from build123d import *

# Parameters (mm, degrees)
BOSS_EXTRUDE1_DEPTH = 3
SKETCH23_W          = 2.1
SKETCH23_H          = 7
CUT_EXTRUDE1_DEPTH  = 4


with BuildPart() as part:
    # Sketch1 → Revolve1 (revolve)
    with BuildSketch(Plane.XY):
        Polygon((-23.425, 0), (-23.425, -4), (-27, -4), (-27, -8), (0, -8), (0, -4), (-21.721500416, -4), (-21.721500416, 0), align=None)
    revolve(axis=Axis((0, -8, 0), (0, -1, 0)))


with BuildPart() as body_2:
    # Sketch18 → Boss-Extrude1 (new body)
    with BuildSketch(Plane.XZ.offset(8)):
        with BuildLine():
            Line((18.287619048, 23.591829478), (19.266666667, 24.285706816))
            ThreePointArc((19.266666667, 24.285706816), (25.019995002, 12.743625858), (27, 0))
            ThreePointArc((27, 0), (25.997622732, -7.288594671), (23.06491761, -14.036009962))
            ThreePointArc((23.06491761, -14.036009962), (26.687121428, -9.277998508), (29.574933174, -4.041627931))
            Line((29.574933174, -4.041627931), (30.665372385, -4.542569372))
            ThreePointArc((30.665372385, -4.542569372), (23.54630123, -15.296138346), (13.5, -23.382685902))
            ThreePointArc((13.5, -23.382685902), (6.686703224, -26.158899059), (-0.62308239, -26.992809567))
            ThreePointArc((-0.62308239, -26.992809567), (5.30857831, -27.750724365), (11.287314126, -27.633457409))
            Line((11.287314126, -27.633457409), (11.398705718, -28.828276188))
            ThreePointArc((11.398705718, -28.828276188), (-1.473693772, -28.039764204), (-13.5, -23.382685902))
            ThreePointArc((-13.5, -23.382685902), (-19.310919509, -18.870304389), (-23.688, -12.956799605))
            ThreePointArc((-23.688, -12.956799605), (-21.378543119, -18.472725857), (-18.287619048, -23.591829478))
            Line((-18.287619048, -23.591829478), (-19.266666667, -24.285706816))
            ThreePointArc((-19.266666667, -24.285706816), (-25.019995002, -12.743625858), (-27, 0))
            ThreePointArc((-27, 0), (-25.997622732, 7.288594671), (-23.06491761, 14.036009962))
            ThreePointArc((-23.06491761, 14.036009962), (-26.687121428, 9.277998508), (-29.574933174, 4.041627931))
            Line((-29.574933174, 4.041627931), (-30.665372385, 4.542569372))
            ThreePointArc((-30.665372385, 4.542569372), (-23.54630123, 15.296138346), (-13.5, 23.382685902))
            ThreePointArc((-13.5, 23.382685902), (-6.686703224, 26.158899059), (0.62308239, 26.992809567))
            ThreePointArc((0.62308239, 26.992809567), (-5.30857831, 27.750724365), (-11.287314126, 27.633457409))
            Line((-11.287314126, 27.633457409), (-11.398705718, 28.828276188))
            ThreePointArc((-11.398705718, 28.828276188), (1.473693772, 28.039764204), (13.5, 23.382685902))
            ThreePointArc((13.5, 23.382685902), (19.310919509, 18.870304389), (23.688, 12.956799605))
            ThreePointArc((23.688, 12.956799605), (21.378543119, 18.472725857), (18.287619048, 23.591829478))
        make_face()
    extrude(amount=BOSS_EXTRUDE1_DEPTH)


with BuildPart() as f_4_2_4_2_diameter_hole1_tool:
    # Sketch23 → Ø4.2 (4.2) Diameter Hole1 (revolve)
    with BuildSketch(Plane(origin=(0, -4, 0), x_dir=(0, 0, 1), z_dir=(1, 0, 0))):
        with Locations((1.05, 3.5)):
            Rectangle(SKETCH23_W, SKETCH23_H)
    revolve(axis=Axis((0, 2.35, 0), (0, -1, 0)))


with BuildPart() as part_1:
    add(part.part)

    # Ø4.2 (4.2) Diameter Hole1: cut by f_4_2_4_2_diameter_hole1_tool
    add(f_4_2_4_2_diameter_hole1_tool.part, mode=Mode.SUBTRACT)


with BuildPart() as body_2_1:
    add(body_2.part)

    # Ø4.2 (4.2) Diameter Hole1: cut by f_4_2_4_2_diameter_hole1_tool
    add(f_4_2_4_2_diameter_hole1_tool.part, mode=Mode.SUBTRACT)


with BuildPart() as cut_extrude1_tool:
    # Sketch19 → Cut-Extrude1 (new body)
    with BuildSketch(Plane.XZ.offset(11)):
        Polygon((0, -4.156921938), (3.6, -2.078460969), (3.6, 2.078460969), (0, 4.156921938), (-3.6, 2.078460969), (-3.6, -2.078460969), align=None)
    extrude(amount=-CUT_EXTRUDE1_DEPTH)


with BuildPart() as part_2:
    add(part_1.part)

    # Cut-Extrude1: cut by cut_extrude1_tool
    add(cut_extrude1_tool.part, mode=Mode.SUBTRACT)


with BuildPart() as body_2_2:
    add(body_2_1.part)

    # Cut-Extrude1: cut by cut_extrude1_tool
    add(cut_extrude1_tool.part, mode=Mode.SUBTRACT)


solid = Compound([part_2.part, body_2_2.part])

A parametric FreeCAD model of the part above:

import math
import FreeCAD as App
import Part
import Sketcher
Q = App.Units.Quantity

doc = App.newDocument("Part")
body = doc.addObject("PartDesign::Body", "Body")

# Sketch on XY plane
sketch1 = body.newObject("Sketcher::SketchObject", "Sketch")
sketch1.AttachmentSupport = (doc.getObject("XY_Plane"), [""])
sketch1.MapMode = "FlatFace"
sketch1.addGeometry([
    Part.LineSegment(App.Vector(-23.4, 0, 0), App.Vector(-23.4, -4, 0)),  # 0
    Part.LineSegment(App.Vector(-23.4, -4, 0), App.Vector(-27, -4, 0)),  # 1
    Part.LineSegment(App.Vector(-27, -4, 0), App.Vector(-27, -8, 0)),  # 2
    Part.LineSegment(App.Vector(-27, -8, 0), App.Vector(0, -8, 0)),  # 3
    Part.LineSegment(App.Vector(0, -8, 0), App.Vector(0, -4, 0)),  # 4
    Part.LineSegment(App.Vector(0, -4, 0), App.Vector(-21.7, -4, 0)),  # 5
    Part.LineSegment(App.Vector(-21.7, -4, 0), App.Vector(-21.7, 0, 0)),  # 6
    Part.LineSegment(App.Vector(-21.7, 0, 0), App.Vector(-23.4, 0, 0)),  # 7
], False)
sketch1.addConstraint([
    Sketcher.Constraint("Coincident", 0, 2, 1, 1),
    Sketcher.Constraint("Coincident", 1, 2, 2, 1),
    Sketcher.Constraint("Coincident", 2, 2, 3, 1),
    Sketcher.Constraint("Coincident", 3, 2, 4, 1),
    Sketcher.Constraint("Coincident", 4, 2, 5, 1),
    Sketcher.Constraint("Coincident", 5, 2, 6, 1),
    Sketcher.Constraint("Coincident", 6, 2, 7, 1),
    Sketcher.Constraint("Coincident", 7, 2, 0, 1),
    Sketcher.Constraint("Vertical", 0),
    Sketcher.Constraint("Horizontal", 1),
    Sketcher.Constraint("Vertical", 2),
    Sketcher.Constraint("Horizontal", 3),
    Sketcher.Constraint("Vertical", 4),
    Sketcher.Constraint("Horizontal", 5),
    Sketcher.Constraint("Vertical", 6),
    Sketcher.Constraint("Horizontal", 7),
    Sketcher.Constraint("PointOnObject", 3, 2, -2),
    Sketcher.Constraint("PointOnObject", 6, 2, -1),
    Sketcher.Constraint("Horizontal", 1, 2, 4, 2),
    Sketcher.Constraint("Equal", 0, 2),
    Sketcher.Constraint("DistanceX", 3, 1, 3, 2, 27.0),
    Sketcher.Constraint("DistanceY", 0, 2, 0, 1, 4.0),
    Sketcher.Constraint("DistanceX", 1, 2, 1, 1, 3.575),
    Sketcher.Constraint("DistanceX", 5, 2, 5, 1, 21.7215),
])
revolution = body.newObject("PartDesign::Revolution", "Revolution")
revolution.Profile = sketch1
revolution.ReferenceAxis = (sketch1, ["V_Axis"])
revolution.Angle = 360
body2 = doc.addObject("PartDesign::Body", "Body001")

# Sketch on XZ plane
sketch2 = body2.newObject("Sketcher::SketchObject", "Sketch001")
sketch2.AttachmentSupport = (doc.getObject("XZ_Plane001"), [""])
sketch2.MapMode = "FlatFace"
sketch2.AttachmentOffset = App.Placement(App.Vector(0, 0, 8), App.Rotation())
sketch2.addGeometry([
    Part.LineSegment(App.Vector(19.3, 24.3, 0), App.Vector(18.3, 23.6, 0)),  # 0
    Part.ArcOfCircle(Part.Circle(App.Vector(-15, 0, 0), App.Vector(0, 0, 1), 40.8), math.radians(18.52), math.radians(35.33)),  # 1
    Part.ArcOfCircle(Part.Circle(App.Vector(0, 0, 0), App.Vector(0, 0, 1), 27), math.radians(29), math.radians(60)),  # 2
    Part.ArcOfCircle(Part.Circle(App.Vector(-7.5, -13, 0), App.Vector(0, 0, 1), 42), math.radians(60), math.radians(95)),  # 3
    Part.LineSegment(App.Vector(-11.4, 28.8, 0), App.Vector(-11.3, 27.6, 0)),  # 4
    Part.ArcOfCircle(Part.Circle(App.Vector(-7.5, -13, 0), App.Vector(0, 0, 1), 40.8), math.radians(78.52), math.radians(95.33)),  # 5
    Part.ArcOfCircle(Part.Circle(App.Vector(0, 0, 0), App.Vector(0, 0, 1), 27), math.radians(89), math.radians(120)),  # 6
    Part.ArcOfCircle(Part.Circle(App.Vector(7.5, -13, 0), App.Vector(0, 0, 1), 42), math.radians(120), math.radians(155)),  # 7
    Part.LineSegment(App.Vector(-30.7, 4.5, 0), App.Vector(-29.6, 4, 0)),  # 8
    Part.ArcOfCircle(Part.Circle(App.Vector(7.5, -13, 0), App.Vector(0, 0, 1), 40.8), math.radians(138.52), math.radians(155.33)),  # 9
    Part.ArcOfCircle(Part.Circle(App.Vector(0, 0, 0), App.Vector(0, 0, 1), 27), math.radians(149), math.radians(180)),  # 10
    Part.ArcOfCircle(Part.Circle(App.Vector(15, 0, 0), App.Vector(0, 0, 1), 42), math.radians(-180), math.radians(-145)),  # 11
    Part.LineSegment(App.Vector(-19.3, -24.3, 0), App.Vector(-18.3, -23.6, 0)),  # 12
    Part.ArcOfCircle(Part.Circle(App.Vector(15, 0, 0), App.Vector(0, 0, 1), 40.8), math.radians(-161.48), math.radians(-144.67)),  # 13
    Part.ArcOfCircle(Part.Circle(App.Vector(0, 0, 0), App.Vector(0, 0, 1), 27), math.radians(-151), math.radians(-120)),  # 14
    Part.ArcOfCircle(Part.Circle(App.Vector(7.5, 13, 0), App.Vector(0, 0, 1), 42), math.radians(-120), math.radians(-85)),  # 15
    Part.LineSegment(App.Vector(11.4, -28.8, 0), App.Vector(11.3, -27.6, 0)),  # 16
    Part.ArcOfCircle(Part.Circle(App.Vector(7.5, 13, 0), App.Vector(0, 0, 1), 40.8), math.radians(-101.48), math.radians(-84.67)),  # 17
    Part.ArcOfCircle(Part.Circle(App.Vector(0, 0, 0), App.Vector(0, 0, 1), 27), math.radians(-91), math.radians(-60)),  # 18
    Part.ArcOfCircle(Part.Circle(App.Vector(-7.5, 13, 0), App.Vector(0, 0, 1), 42), math.radians(-60), math.radians(-25)),  # 19
    Part.LineSegment(App.Vector(30.7, -4.5, 0), App.Vector(29.6, -4, 0)),  # 20
    Part.ArcOfCircle(Part.Circle(App.Vector(-7.5, 13, 0), App.Vector(0, 0, 1), 40.8), math.radians(-41.48), math.radians(-24.67)),  # 21
    Part.ArcOfCircle(Part.Circle(App.Vector(0, 0, 0), App.Vector(0, 0, 1), 27), math.radians(-31), math.radians(0)),  # 22
    Part.ArcOfCircle(Part.Circle(App.Vector(-15, 0, 0), App.Vector(0, 0, 1), 42), math.radians(0), math.radians(35)),  # 23
], False)
sketch2.addConstraint([
    Sketcher.Constraint("Coincident", 0, 2, 1, 2),
    Sketcher.Constraint("Coincident", 1, 1, 2, 1),
    Sketcher.Constraint("Tangent", 2, 2, 3, 1),
    Sketcher.Constraint("Coincident", 3, 2, 4, 1),
    Sketcher.Constraint("Coincident", 4, 2, 5, 2),
    Sketcher.Constraint("Coincident", 5, 1, 6, 1),
    Sketcher.Constraint("Tangent", 6, 2, 7, 1),
    Sketcher.Constraint("Coincident", 7, 2, 8, 1),
    Sketcher.Constraint("Coincident", 8, 2, 9, 2),
    Sketcher.Constraint("Coincident", 9, 1, 10, 1),
    Sketcher.Constraint("Tangent", 10, 2, 11, 1),
    Sketcher.Constraint("Coincident", 11, 2, 12, 1),
    Sketcher.Constraint("Coincident", 12, 2, 13, 2),
    Sketcher.Constraint("Coincident", 13, 1, 14, 1),
    Sketcher.Constraint("Tangent", 14, 2, 15, 1),
    Sketcher.Constraint("Coincident", 15, 2, 16, 1),
    Sketcher.Constraint("Coincident", 16, 2, 17, 2),
    Sketcher.Constraint("Coincident", 17, 1, 18, 1),
    Sketcher.Constraint("Tangent", 18, 2, 19, 1),
    Sketcher.Constraint("Coincident", 19, 2, 20, 1),
    Sketcher.Constraint("Coincident", 20, 2, 21, 2),
    Sketcher.Constraint("Coincident", 21, 1, 22, 1),
    Sketcher.Constraint("Tangent", 22, 2, 23, 1),
    Sketcher.Constraint("Coincident", 23, 2, 0, 1),
    Sketcher.Constraint("Coincident", 2, 3, -1, 1),
    Sketcher.Constraint("Coincident", 6, 3, -1, 1),
    Sketcher.Constraint("Coincident", 10, 3, -1, 1),
    Sketcher.Constraint("Coincident", 14, 3, -1, 1),
    Sketcher.Constraint("Coincident", 18, 3, -1, 1),
    Sketcher.Constraint("Coincident", 22, 3, -1, 1),
    Sketcher.Constraint("Coincident", 5, 3, 3, 3),
    Sketcher.Constraint("Coincident", 9, 3, 7, 3),
    Sketcher.Constraint("Coincident", 13, 3, 11, 3),
    Sketcher.Constraint("Coincident", 17, 3, 15, 3),
    Sketcher.Constraint("Coincident", 21, 3, 19, 3),
    Sketcher.Constraint("Coincident", 23, 3, 1, 3),
    Sketcher.Constraint("Equal", 1, 5),
    Sketcher.Constraint("Equal", 2, 6),
    Sketcher.Constraint("Equal", 3, 7),
    Sketcher.Constraint("Equal", 5, 9),
    Sketcher.Constraint("Equal", 6, 10),
    Sketcher.Constraint("Equal", 7, 11),
    Sketcher.Constraint("Equal", 9, 13),
    Sketcher.Constraint("Equal", 10, 14),
    Sketcher.Constraint("Equal", 11, 15),
    Sketcher.Constraint("Equal", 13, 17),
    Sketcher.Constraint("Equal", 14, 18),
    Sketcher.Constraint("Equal", 15, 19),
    Sketcher.Constraint("Equal", 17, 21),
    Sketcher.Constraint("Equal", 18, 22),
    Sketcher.Constraint("Equal", 19, 23),
    Sketcher.Constraint("Symmetric", 0, 2, 12, 2, -1, 1),
    Sketcher.Constraint("Symmetric", 3, 2, 15, 2, -1, 1),
    Sketcher.Constraint("Symmetric", 7, 2, 19, 2, -1, 1),
    Sketcher.Constraint("PointOnObject", 1, 3, -1),
    Sketcher.Constraint("Parallel", 0, 12),
    Sketcher.Constraint("Parallel", 4, 16),
    Sketcher.Constraint("Parallel", 8, 20),
    Sketcher.Constraint("Horizontal", 5, 3, 7, 3),
    Sketcher.Constraint("Radius", 2, 27.0),
    Sketcher.Constraint("Radius", 3, 42.0),
    Sketcher.Constraint("Radius", 1, 40.8),
    Sketcher.Constraint("DistanceX", 5, 3, 7, 3, 15.0),
    Sketcher.Constraint("DistanceX", -1, 1, 0, 2, 18.287619),
    Sketcher.Constraint("DistanceY", -1, 1, 7, 2, 4.542569),
    Sketcher.Constraint("DistanceY", 2, 2, 3, 2, 5.44559),
    Sketcher.Constraint("DistanceX", 3, 2, 4, 2, 0.111392),
    Sketcher.Constraint("DistanceX", 7, 2, 8, 2, 1.090439),
    Sketcher.Constraint("DistanceY", 11, 2, 14, 2, 0.903021),
])
pad1 = body2.newObject("PartDesign::Pad", "Pad")
pad1.Profile = sketch2
pad1.Length = 3
body3 = doc.addObject("PartDesign::Body", "Body002")

# Sketch on YZ plane
sketch3 = body3.newObject("Sketcher::SketchObject", "Sketch002")
sketch3.AttachmentSupport = (doc.getObject("YZ_Plane002"), [""])
sketch3.MapMode = "FlatFace"
sketch3.addGeometry([
    Part.LineSegment(App.Vector(-11, 0, 0), App.Vector(-4, 0, 0)),
    Part.LineSegment(App.Vector(-4, 0, 0), App.Vector(-4, 2.1, 0)),
    Part.LineSegment(App.Vector(-4, 2.1, 0), App.Vector(-11, 2.1, 0)),
    Part.LineSegment(App.Vector(-11, 2.1, 0), App.Vector(-11, 0, 0)),
], False)
sketch3.addConstraint([
    Sketcher.Constraint("Coincident", 0, 2, 1, 1),
    Sketcher.Constraint("Coincident", 1, 2, 2, 1),
    Sketcher.Constraint("Coincident", 2, 2, 3, 1),
    Sketcher.Constraint("Coincident", 3, 2, 0, 1),
    Sketcher.Constraint("Horizontal", 0),
    Sketcher.Constraint("Vertical", 1),
    Sketcher.Constraint("Horizontal", 2),
    Sketcher.Constraint("Vertical", 3),
    Sketcher.Constraint("PointOnObject", 0, 2, -1),
    Sketcher.Constraint("DistanceX", 0, 1, 0, 2, 7.0),
    Sketcher.Constraint("DistanceY", 1, 1, 1, 2, 2.1),
    Sketcher.Constraint("DistanceX", 0, 2, -1, 1, 4.0),
])
revolution2 = body3.newObject("PartDesign::Revolution", "Revolution001")
revolution2.Profile = sketch3
revolution2.ReferenceAxis = (sketch3, ["H_Axis"])
revolution2.Angle = 360
doc.recompute()

body4 = doc.addObject("PartDesign::Body", "Body003")
body4.BaseFeature = body3
boolean = body.newObject("PartDesign::Boolean", "Boolean")
boolean.Type = "Cut"
boolean.addObjects([body4])
doc.recompute()

boolean2 = body2.newObject("PartDesign::Boolean", "Boolean001")
boolean2.Type = "Cut"
boolean2.addObjects([body3])
body5 = doc.addObject("PartDesign::Body", "Body004")

# Sketch on XZ plane
sketch4 = body5.newObject("Sketcher::SketchObject", "Sketch003")
sketch4.AttachmentSupport = (doc.getObject("XZ_Plane004"), [""])
sketch4.MapMode = "FlatFace"
sketch4.AttachmentOffset = App.Placement(App.Vector(0, 0, 11), App.Rotation())
sketch4.addGeometry([
    Part.LineSegment(App.Vector(0, -4.2, 0), App.Vector(3.6, -2.1, 0)),  # 0
    Part.LineSegment(App.Vector(3.6, -2.1, 0), App.Vector(3.6, 2.1, 0)),  # 1
    Part.LineSegment(App.Vector(3.6, 2.1, 0), App.Vector(0, 4.2, 0)),  # 2
    Part.LineSegment(App.Vector(0, 4.2, 0), App.Vector(-3.6, 2.1, 0)),  # 3
    Part.LineSegment(App.Vector(-3.6, 2.1, 0), App.Vector(-3.6, -2.1, 0)),  # 4
    Part.LineSegment(App.Vector(-3.6, -2.1, 0), App.Vector(0, -4.2, 0)),  # 5
], False)
sketch4.addConstraint([
    Sketcher.Constraint("Coincident", 0, 2, 1, 1),
    Sketcher.Constraint("Coincident", 1, 2, 2, 1),
    Sketcher.Constraint("Coincident", 2, 2, 3, 1),
    Sketcher.Constraint("Coincident", 3, 2, 4, 1),
    Sketcher.Constraint("Coincident", 4, 2, 5, 1),
    Sketcher.Constraint("Coincident", 5, 2, 0, 1),
    Sketcher.Constraint("Vertical", 1),
    Sketcher.Constraint("Vertical", 4),
    Sketcher.Constraint("Symmetric", 0, 2, 3, 2, -1, 1),
    Sketcher.Constraint("Symmetric", 2, 2, 5, 2, -1, 1),
    Sketcher.Constraint("PointOnObject", 2, 2, -2),
    Sketcher.Constraint("Parallel", 2, 5),
    Sketcher.Constraint("Horizontal", 1, 2, 3, 2),
    Sketcher.Constraint("Angle", 0, Q("30 deg")),
    Sketcher.Constraint("DistanceX", -1, 1, 0, 2, 3.6),
    Sketcher.Constraint("DistanceY", 1, 1, 1, 2, 4.156922),
])
pad2 = body5.newObject("PartDesign::Pad", "Pad001")
pad2.Profile = sketch4
pad2.Length = 4
pad2.Reversed = True
doc.recompute()

body6 = doc.addObject("PartDesign::Body", "Body005")
body6.BaseFeature = body5
boolean3 = body.newObject("PartDesign::Boolean", "Boolean002")
boolean3.Type = "Cut"
boolean3.addObjects([body6])
doc.recompute()

boolean4 = body2.newObject("PartDesign::Boolean", "Boolean003")
boolean4.Type = "Cut"
boolean4.addObjects([body5])

doc.recompute()
